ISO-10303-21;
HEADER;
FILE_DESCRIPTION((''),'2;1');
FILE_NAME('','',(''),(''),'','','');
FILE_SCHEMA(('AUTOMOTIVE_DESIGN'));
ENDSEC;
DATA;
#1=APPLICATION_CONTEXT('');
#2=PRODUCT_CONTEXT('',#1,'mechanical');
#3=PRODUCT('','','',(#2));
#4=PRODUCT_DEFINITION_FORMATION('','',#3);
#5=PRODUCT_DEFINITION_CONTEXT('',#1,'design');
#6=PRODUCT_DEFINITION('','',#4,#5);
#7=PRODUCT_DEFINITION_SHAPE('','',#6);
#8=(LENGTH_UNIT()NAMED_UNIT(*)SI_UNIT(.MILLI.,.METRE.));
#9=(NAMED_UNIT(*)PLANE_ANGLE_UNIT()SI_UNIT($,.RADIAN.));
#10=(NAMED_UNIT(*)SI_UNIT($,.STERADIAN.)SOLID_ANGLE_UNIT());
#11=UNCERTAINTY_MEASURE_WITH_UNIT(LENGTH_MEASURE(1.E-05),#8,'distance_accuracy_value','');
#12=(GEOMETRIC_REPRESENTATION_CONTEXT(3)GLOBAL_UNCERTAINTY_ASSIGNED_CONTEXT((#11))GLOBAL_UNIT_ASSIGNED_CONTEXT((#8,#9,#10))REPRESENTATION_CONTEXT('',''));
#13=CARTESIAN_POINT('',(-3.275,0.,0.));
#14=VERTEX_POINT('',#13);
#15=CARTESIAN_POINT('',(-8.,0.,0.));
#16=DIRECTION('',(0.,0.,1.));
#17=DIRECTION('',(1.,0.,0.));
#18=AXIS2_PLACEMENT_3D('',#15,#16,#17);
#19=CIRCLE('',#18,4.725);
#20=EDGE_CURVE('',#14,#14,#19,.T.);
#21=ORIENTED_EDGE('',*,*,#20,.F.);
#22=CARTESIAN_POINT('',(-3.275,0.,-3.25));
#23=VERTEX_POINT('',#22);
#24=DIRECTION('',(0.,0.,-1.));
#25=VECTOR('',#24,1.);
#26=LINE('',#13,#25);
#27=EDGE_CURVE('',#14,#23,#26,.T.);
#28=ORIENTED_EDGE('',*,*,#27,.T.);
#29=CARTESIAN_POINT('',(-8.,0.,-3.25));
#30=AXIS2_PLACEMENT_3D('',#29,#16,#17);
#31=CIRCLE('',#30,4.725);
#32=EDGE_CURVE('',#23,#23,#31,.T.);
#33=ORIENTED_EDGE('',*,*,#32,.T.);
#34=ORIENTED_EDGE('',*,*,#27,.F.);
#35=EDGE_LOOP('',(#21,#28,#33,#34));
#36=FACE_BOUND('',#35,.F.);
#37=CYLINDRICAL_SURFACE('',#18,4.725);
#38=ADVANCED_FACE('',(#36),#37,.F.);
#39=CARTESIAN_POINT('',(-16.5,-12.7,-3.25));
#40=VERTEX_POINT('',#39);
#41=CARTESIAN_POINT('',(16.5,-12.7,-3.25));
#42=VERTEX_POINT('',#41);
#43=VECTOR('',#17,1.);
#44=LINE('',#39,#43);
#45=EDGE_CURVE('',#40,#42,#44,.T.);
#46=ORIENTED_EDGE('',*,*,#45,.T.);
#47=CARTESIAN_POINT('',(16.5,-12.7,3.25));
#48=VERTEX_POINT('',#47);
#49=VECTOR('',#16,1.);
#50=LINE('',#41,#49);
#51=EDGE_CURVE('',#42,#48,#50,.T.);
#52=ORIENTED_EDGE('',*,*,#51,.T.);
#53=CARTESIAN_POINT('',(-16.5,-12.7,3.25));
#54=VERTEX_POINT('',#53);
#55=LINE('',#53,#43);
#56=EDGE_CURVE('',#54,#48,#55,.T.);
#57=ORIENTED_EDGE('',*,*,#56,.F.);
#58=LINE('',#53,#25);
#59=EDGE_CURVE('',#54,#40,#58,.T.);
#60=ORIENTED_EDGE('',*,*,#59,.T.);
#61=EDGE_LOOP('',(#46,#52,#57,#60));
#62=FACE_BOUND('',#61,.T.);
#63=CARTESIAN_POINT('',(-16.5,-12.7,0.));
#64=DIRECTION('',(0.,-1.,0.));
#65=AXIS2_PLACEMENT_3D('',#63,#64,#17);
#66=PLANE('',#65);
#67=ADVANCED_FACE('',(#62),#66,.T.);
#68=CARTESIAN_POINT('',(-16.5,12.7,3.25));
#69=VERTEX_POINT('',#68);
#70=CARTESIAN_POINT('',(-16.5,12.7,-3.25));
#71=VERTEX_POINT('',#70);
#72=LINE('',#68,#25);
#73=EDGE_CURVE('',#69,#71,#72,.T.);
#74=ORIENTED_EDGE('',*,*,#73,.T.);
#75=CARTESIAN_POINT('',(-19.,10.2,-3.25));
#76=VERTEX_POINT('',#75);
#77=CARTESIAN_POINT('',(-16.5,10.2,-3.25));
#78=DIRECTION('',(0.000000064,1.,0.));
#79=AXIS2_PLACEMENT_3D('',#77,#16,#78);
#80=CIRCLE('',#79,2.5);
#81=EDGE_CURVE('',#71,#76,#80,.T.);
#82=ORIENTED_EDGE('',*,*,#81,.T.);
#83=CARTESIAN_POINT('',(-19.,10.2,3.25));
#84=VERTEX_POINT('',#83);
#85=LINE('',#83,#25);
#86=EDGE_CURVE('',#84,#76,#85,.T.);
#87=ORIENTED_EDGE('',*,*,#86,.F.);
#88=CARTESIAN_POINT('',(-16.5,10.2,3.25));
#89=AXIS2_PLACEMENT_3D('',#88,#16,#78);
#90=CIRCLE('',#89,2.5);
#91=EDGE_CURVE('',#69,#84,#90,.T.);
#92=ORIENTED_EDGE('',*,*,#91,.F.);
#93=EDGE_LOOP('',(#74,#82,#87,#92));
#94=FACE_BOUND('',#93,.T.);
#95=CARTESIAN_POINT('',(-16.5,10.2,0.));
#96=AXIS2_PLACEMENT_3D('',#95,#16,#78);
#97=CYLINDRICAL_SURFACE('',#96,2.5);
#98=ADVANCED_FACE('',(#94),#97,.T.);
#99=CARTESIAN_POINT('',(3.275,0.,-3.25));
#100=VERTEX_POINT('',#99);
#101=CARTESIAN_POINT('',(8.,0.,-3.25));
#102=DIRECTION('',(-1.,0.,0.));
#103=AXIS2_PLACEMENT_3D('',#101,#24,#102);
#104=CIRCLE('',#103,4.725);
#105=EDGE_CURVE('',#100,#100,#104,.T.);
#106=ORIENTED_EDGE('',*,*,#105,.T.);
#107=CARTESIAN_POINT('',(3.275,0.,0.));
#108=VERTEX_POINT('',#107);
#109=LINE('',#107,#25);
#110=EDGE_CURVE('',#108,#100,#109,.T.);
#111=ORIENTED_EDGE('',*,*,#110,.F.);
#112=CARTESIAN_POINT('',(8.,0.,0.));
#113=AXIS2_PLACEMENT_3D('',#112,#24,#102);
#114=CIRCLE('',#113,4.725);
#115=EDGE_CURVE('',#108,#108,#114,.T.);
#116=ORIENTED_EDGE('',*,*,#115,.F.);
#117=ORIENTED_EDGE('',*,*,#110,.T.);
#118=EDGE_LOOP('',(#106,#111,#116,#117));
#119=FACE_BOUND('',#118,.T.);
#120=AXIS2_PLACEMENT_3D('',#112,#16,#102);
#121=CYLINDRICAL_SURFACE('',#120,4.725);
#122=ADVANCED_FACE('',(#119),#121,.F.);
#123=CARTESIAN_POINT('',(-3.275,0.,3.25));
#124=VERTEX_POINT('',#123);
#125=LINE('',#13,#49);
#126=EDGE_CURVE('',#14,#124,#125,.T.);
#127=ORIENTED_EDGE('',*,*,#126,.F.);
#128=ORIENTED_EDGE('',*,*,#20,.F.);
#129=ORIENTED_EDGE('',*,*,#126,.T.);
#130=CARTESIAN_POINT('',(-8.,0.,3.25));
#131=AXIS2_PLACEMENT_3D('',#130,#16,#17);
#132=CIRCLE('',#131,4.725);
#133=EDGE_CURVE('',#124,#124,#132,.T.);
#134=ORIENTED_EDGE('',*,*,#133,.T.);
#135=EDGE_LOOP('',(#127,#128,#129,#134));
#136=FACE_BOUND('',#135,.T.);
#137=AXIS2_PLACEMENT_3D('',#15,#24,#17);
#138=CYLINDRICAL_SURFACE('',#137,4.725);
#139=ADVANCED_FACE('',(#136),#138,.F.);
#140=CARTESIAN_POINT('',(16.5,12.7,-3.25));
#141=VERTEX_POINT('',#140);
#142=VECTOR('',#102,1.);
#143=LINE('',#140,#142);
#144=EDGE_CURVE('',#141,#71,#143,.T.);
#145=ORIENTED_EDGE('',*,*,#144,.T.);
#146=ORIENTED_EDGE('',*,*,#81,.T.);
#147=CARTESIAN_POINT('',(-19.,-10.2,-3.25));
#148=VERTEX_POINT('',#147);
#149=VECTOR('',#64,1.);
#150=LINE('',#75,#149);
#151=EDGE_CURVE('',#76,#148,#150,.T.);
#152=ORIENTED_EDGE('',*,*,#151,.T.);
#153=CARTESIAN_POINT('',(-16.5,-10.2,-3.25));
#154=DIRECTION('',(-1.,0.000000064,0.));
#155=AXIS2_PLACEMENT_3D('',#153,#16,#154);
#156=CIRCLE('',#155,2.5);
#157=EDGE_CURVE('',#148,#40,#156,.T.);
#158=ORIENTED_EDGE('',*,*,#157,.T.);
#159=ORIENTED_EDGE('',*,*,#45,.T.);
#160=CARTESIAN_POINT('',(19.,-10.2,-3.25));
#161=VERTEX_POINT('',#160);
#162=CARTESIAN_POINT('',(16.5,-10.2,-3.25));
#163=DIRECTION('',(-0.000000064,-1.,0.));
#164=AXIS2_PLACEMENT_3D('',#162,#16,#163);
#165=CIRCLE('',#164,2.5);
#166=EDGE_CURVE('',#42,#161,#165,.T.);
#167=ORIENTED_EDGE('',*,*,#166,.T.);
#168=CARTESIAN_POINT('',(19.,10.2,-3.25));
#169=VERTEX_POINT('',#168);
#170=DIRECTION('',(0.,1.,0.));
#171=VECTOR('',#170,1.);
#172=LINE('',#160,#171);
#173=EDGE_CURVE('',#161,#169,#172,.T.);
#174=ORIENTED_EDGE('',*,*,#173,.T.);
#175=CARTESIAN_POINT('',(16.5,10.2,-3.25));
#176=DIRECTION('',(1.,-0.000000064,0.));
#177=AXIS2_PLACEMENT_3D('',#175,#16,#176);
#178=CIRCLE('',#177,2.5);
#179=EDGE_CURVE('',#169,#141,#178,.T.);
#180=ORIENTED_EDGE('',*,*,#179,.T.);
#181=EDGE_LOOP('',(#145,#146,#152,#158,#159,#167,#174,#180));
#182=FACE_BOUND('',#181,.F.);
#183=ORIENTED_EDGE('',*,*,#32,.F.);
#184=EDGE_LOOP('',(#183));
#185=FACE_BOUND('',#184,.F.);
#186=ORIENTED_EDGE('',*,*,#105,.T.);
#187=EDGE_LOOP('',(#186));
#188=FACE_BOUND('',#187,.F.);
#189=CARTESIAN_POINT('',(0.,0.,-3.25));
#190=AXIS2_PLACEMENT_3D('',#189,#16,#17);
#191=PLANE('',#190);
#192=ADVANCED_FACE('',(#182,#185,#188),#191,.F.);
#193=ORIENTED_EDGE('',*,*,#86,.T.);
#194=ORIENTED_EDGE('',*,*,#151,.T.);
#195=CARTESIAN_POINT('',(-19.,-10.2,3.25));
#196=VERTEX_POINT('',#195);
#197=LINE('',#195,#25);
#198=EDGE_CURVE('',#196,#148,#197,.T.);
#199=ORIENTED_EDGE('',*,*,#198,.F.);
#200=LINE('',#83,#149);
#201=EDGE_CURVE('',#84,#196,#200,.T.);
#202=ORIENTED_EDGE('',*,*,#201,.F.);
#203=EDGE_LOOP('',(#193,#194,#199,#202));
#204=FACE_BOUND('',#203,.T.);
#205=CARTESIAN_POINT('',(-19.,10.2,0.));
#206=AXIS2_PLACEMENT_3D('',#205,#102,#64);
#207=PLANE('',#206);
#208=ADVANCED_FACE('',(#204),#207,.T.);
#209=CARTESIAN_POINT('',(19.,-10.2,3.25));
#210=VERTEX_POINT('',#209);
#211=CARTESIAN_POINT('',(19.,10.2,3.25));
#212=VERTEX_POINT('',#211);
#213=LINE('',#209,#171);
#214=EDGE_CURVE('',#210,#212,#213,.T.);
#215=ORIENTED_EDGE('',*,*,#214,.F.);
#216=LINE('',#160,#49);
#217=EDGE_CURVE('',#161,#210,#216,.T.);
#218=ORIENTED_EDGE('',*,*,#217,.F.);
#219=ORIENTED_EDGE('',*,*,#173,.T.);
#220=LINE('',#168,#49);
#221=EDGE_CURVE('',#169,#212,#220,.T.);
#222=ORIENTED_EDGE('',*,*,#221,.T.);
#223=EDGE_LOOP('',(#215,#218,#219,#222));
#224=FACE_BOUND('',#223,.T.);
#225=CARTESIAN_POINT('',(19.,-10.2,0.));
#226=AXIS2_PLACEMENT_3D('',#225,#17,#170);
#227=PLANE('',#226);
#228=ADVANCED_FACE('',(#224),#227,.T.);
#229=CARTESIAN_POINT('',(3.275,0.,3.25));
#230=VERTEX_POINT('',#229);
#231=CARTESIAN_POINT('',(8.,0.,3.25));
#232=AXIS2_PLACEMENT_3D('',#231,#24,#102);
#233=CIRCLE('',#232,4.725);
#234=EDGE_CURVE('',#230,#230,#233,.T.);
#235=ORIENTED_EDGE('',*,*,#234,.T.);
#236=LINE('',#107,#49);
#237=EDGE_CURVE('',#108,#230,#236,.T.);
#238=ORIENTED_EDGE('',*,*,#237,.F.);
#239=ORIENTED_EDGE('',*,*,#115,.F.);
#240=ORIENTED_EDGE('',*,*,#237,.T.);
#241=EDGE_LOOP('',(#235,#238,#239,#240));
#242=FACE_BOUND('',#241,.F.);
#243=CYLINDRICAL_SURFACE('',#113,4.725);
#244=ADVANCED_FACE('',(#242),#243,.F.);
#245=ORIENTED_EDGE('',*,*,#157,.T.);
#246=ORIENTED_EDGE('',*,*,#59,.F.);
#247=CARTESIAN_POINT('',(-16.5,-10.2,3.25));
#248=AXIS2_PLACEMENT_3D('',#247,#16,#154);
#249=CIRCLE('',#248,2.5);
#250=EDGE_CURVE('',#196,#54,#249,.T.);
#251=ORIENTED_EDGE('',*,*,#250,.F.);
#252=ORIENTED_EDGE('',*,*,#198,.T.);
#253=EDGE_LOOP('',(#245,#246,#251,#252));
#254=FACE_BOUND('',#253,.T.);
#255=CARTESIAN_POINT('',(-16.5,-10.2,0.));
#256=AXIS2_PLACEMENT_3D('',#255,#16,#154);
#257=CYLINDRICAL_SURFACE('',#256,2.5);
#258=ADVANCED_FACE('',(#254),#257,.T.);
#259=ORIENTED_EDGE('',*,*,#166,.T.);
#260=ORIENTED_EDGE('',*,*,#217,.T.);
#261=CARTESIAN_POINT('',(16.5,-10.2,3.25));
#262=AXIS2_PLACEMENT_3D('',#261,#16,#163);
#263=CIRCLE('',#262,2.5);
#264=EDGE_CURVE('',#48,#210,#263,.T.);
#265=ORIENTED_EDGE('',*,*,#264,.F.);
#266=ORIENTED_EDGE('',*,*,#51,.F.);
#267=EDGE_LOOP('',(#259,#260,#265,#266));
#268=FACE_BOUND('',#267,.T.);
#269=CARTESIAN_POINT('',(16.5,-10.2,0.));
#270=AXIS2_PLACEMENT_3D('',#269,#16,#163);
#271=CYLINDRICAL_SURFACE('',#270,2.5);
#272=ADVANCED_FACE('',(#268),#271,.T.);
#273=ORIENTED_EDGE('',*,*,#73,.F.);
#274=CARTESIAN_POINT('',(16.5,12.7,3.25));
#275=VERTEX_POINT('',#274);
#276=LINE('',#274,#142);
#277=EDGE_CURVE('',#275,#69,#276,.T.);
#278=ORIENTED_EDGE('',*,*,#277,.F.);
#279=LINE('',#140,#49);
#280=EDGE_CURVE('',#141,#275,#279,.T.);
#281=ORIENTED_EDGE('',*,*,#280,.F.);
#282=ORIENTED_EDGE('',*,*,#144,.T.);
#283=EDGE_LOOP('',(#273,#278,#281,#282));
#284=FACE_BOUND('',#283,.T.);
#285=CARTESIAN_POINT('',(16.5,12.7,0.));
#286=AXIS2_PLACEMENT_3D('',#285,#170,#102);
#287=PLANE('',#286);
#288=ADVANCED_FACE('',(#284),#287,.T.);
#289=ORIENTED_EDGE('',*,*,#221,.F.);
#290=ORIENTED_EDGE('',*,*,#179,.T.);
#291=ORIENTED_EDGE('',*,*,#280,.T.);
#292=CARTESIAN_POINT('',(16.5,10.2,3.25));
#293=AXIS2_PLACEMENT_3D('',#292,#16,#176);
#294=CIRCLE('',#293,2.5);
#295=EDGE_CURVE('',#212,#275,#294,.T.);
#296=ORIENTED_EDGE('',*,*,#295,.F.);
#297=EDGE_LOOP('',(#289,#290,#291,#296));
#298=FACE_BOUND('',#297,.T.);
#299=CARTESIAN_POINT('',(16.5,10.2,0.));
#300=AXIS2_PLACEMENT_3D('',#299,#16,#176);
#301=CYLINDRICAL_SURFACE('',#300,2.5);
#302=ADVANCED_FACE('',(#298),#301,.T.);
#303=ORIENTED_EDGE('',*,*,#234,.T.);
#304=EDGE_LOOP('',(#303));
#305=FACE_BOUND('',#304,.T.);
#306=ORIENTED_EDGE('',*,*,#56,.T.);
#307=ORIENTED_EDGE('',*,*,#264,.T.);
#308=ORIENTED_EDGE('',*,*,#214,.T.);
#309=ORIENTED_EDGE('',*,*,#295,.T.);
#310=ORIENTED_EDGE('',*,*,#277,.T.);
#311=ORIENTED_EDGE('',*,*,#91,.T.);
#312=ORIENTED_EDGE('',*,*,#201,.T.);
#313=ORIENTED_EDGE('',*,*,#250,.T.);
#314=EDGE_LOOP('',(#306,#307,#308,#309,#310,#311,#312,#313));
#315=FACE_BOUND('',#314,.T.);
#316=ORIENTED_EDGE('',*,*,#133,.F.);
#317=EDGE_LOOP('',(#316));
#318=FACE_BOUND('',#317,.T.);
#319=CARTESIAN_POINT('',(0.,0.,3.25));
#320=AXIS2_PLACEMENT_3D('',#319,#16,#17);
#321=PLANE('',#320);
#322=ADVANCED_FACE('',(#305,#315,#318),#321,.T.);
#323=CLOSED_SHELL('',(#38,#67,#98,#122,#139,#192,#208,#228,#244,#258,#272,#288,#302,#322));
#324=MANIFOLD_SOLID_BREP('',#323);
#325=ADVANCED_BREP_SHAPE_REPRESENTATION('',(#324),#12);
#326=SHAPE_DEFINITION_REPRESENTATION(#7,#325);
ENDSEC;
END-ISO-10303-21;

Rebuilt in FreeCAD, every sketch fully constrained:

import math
import FreeCAD as App
import Part
import Sketcher

V = App.Vector
Q = App.Units.Quantity

doc = App.newDocument("Part")
body = doc.addObject("PartDesign::Body", "Body")

sketch1 = body.newObject("Sketcher::SketchObject", "Sketch")
sketch1.AttachmentSupport = (doc.getObject("XY_Plane"), [""])
sketch1.MapMode = "FlatFace"
sketch1.addGeometry([
    Part.LineSegment(V(-16.5, -12.7, 0), V(16.5, -12.7, 0)),
    Part.ArcOfCircle(Part.Circle(V(16.5, -10.2, 0), V(0, 0, 1), 2.5), math.radians(-90), math.radians(0)),
    Part.LineSegment(V(19, -10.2, 0), V(19, 10.2, 0)),
    Part.ArcOfCircle(Part.Circle(V(16.5, 10.2, 0), V(0, 0, 1), 2.5), math.radians(0), math.radians(90)),
    Part.LineSegment(V(16.5, 12.7, 0), V(-16.5, 12.7, 0)),
    Part.ArcOfCircle(Part.Circle(V(-16.5, 10.2, 0), V(0, 0, 1), 2.5), math.radians(90), math.radians(180)),
    Part.LineSegment(V(-19, 10.2, 0), V(-19, -10.2, 0)),
    Part.ArcOfCircle(Part.Circle(V(-16.5, -10.2, 0), V(0, 0, 1), 2.5), math.radians(180), math.radians(270)),
    Part.Circle(V(-8, 0, 0), V(0, 0, 1), 4.7),
    Part.Circle(V(8, 0, 0), V(0, 0, 1), 4.7),
], False)
sketch1.addConstraint([
    Sketcher.Constraint("Tangent", 0, 2, 1, 1),
    Sketcher.Constraint("Tangent", 1, 2, 2, 1),
    Sketcher.Constraint("Tangent", 2, 2, 3, 1),
    Sketcher.Constraint("Tangent", 3, 2, 4, 1),
    Sketcher.Constraint("Tangent", 4, 2, 5, 1),
    Sketcher.Constraint("Tangent", 5, 2, 6, 1),
    Sketcher.Constraint("Tangent", 6, 2, 7, 1),
    Sketcher.Constraint("Tangent", 7, 2, 0, 1),
    Sketcher.Constraint("Horizontal", 0),
    Sketcher.Constraint("Vertical", 2),
    Sketcher.Constraint("Horizontal", 4),
    Sketcher.Constraint("Vertical", 6),
    Sketcher.Constraint("Equal", 1, 3),
    Sketcher.Constraint("Equal", 3, 5),
    Sketcher.Constraint("Equal", 5, 7),
    Sketcher.Constraint("Equal", 8, 9),
    Sketcher.Constraint("Symmetric", 1, 3, 5, 3, -1, 1),
    Sketcher.Constraint("Symmetric", 8, 3, 9, 3, -1, 1),
    Sketcher.Constraint("PointOnObject", 8, 3, -1),
    Sketcher.Constraint("Radius", 1, Q("2.5 mm")),
    Sketcher.Constraint("Diameter", 8, Q("9.45 mm")),
    Sketcher.Constraint("DistanceX", 0, 1, 0, 2, Q("33 mm")),
    Sketcher.Constraint("DistanceY", 2, 1, 2, 2, Q("20.4 mm")),
    Sketcher.Constraint("DistanceX", 8, 3, -1, 1, Q("8 mm")),
])
pad1 = body.newObject("PartDesign::Pad", "Pad")
pad1.Profile = sketch1
pad1.Length = 6.5
pad1.Midplane = True

doc.recompute()
